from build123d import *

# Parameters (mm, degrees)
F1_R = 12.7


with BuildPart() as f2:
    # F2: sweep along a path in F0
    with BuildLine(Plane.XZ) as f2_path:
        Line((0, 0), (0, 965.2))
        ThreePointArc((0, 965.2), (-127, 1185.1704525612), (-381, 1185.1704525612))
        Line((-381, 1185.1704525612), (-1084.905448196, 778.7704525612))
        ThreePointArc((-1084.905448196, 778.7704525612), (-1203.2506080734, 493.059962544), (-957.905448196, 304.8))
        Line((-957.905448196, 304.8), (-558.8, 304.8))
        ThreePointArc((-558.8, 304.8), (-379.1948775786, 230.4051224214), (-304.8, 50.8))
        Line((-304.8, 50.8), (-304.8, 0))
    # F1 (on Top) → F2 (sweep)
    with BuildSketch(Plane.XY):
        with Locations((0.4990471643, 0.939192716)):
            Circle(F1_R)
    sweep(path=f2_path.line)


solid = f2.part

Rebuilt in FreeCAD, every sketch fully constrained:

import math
import FreeCAD as App
import Part
import Sketcher

V = App.Vector
Q = App.Units.Quantity

doc = App.newDocument("Part")
body = doc.addObject("PartDesign::Body", "Body")

# Sketch on XY plane
sketch1 = doc.addObject("Sketcher::SketchObject", "Sketch")
body.addObject(sketch1)
sketch1.AttachmentSupport = (doc.XY_Plane, [""])
sketch1.MapMode = "FlatFace"
sketch1.addGeometry(Part.Circle(V(0.499047, 0.939193, 0), V(0, 0, 1), 12.7), False)
sketch1.addConstraint([
    Sketcher.Constraint("Diameter", 0, Q("1 in")),
    Sketcher.Constraint("DistanceX", -1, 1, 0, 3, Q("0.499047 mm")),
    Sketcher.Constraint("DistanceY", -1, 1, 0, 3, Q("0.939193 mm")),
])

# Sketch on XZ plane
sketch2 = doc.addObject("Sketcher::SketchObject", "Sketch001")
body.addObject(sketch2)
sketch2.AttachmentSupport = (doc.XZ_Plane, [""])
sketch2.MapMode = "FlatFace"
sketch2.addGeometry([
    Part.LineSegment(V(0, 0, 0), V(0, 965.2, 0)),  # 0
    Part.ArcOfCircle(Part.Circle(V(-254, 965.2, 0), V(0, 0, 1), 254), math.radians(0), math.radians(120)),  # 1
    Part.LineSegment(V(-381, 1185.170453, 0), V(-1084.905448, 778.770453, 0)),  # 2
    Part.ArcOfCircle(Part.Circle(V(-957.905448, 558.8, 0), V(0, 0, 1), 254), math.radians(120), math.radians(270)),  # 3
    Part.LineSegment(V(-957.905448, 304.8, 0), V(-558.8, 304.8, 0)),  # 4
    Part.ArcOfCircle(Part.Circle(V(-558.8, 50.8, 0), V(0, 0, 1), 254), math.radians(0), math.radians(90)),  # 5
    Part.LineSegment(V(-304.8, 50.8, 0), V(-304.8, 0, 0)),  # 6
], False)
sketch2.addConstraint([
    Sketcher.Constraint("Tangent", 0, 2, 1, 1),
    Sketcher.Constraint("Tangent", 1, 2, 2, 1),
    Sketcher.Constraint("Tangent", 2, 2, 3, 1),
    Sketcher.Constraint("Tangent", 3, 2, 4, 1),
    Sketcher.Constraint("Tangent", 4, 2, 5, 2),
    Sketcher.Constraint("Tangent", 5, 1, 6, 1),
    Sketcher.Constraint("Vertical", 0),
    Sketcher.Constraint("Horizontal", 4),
    Sketcher.Constraint("Vertical", 6),
    Sketcher.Constraint("Coincident", 0, 1, -1, 1),
    Sketcher.Constraint("Equal", 1, 3),
    Sketcher.Constraint("Equal", 3, 5),
    Sketcher.Constraint("PointOnObject", 6, 2, -1),
    Sketcher.Constraint("Radius", 1, Q("10 in")),
    Sketcher.Constraint("DistanceY", 0, 1, 0, 2, Q("38 in")),
    Sketcher.Constraint("DistanceY", 6, 2, 6, 1, Q("2 in")),
    Sketcher.Constraint("Distance", 2, Q("32 in")),
    Sketcher.Constraint("DistanceX", 5, 3, -1, 1, Q("22 in")),
])
doc.recompute()

additivepipe = doc.addObject("PartDesign::AdditivePipe", "AdditivePipe")
body.addObject(additivepipe)
additivepipe.Profile = sketch1
additivepipe.Spine = (sketch2, ["Edge1", "Edge2", "Edge3", "Edge4", "Edge5", "Edge6", "Edge7"])

doc.recompute()
